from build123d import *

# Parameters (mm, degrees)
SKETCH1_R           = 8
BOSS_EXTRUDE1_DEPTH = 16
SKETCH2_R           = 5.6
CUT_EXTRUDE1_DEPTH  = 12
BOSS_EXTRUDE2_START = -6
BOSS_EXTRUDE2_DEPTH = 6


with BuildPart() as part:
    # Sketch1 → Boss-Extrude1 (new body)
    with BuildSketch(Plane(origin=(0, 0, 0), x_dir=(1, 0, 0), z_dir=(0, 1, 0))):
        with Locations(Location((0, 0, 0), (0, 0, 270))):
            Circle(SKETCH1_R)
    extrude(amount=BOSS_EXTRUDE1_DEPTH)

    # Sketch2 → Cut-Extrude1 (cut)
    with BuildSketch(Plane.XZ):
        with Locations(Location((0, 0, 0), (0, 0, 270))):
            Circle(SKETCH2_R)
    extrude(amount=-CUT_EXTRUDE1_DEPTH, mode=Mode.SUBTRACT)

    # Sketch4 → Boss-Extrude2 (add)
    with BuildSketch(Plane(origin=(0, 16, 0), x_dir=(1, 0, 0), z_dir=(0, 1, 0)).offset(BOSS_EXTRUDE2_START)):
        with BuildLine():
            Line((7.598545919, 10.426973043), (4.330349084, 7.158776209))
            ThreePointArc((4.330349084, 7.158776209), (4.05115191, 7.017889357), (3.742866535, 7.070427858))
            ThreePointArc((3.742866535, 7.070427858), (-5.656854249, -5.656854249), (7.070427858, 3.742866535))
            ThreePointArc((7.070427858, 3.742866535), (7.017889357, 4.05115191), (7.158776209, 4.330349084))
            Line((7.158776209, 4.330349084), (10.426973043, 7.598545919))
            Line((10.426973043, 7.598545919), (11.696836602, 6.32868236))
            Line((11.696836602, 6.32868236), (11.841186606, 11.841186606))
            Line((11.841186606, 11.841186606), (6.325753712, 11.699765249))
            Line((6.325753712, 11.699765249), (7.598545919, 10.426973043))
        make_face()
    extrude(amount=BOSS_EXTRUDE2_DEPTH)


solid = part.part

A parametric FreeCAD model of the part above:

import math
import FreeCAD as App
import Part
import Sketcher
Q = App.Units.Quantity

doc = App.newDocument("Part")
params = doc.addObject("Spreadsheet::Sheet", "Params")
for row, (alias, value) in enumerate([
    ("sketch1_diameter", "16 mm"),
    ("pad1_length", "16 mm"),
    ("sketch2_diameter", "11.2 mm"),
    ("pocket1_length", "12 mm"),
    ("sketch3_radius", "8 mm"),
    ("sketch3_radius2", "0.5 mm"),
    ("sketch3_length", "1.8 mm"),
    ("pad2_length", "6 mm"),
], start=1):
    params.set(f"A{row}", alias)
    params.set(f"B{row}", "=" + value)
    params.setAlias(f"B{row}", alias)

body = doc.addObject("PartDesign::Body", "Body")

# Sketch on XZ plane
sketch1 = doc.addObject("Sketcher::SketchObject", "Sketch")
body.addObject(sketch1)
sketch1.AttachmentSupport = (doc.XZ_Plane, [""])
sketch1.MapMode = "FlatFace"
sketch1.addGeometry(Part.Circle(App.Vector(0, 0, 0), App.Vector(0, 0, 1), 8), False)
sketch1.addConstraint(Sketcher.Constraint("Coincident", 0, 3, -1, 1))
sketch1.addConstraint(Sketcher.Constraint("Diameter", 0, Q("16 mm")))
sketch1.setExpression("Constraints[1]", "Params.sketch1_diameter")
pad1 = doc.addObject("PartDesign::Pad", "Pad")
body.addObject(pad1)
pad1.Profile = sketch1
pad1.setExpression("Length", "Params.pad1_length")
pad1.Reversed = True

# Sketch on XZ plane
sketch2 = doc.addObject("Sketcher::SketchObject", "Sketch001")
body.addObject(sketch2)
sketch2.AttachmentSupport = (doc.XZ_Plane, [""])
sketch2.MapMode = "FlatFace"
sketch2.addGeometry(Part.Circle(App.Vector(0, 0, 0), App.Vector(0, 0, 1), 6), False)
sketch2.addConstraint(Sketcher.Constraint("Coincident", 0, 3, -1, 1))
sketch2.addConstraint(Sketcher.Constraint("Diameter", 0, Q("11.2 mm")))
sketch2.setExpression("Constraints[1]", "Params.sketch2_diameter")
pocket1 = doc.addObject("PartDesign::Pocket", "Pocket")
body.addObject(pocket1)
pocket1.Profile = sketch2
pocket1.setExpression("Length", "Params.pocket1_length")

# Sketch on XZ plane
sketch3 = doc.addObject("Sketcher::SketchObject", "Sketch002")
body.addObject(sketch3)
sketch3.AttachmentSupport = (doc.XZ_Plane, [""])
sketch3.MapMode = "FlatFace"
sketch3.AttachmentOffset = App.Placement(App.Vector(0, 0, -10), App.Rotation())
sketch3.addGeometry(Part.LineSegment(App.Vector(7.6, -10.43, 0), App.Vector(4.33, -7.16, 0)), False)
sketch3.addGeometry(Part.ArcOfCircle(Part.Circle(App.Vector(3.98, -7.51, 0), App.Vector(0, 0, 1), 0.5), math.radians(45), math.radians(118)), False)
sketch3.addGeometry(Part.ArcOfCircle(Part.Circle(App.Vector(0, 0, 0), App.Vector(0, 0, 1), 8), math.radians(-28), math.radians(298)), False)
sketch3.addGeometry(Part.ArcOfCircle(Part.Circle(App.Vector(7.51, -3.98, 0), App.Vector(0, 0, 1), 0.5), math.radians(152), math.radians(225)), False)
sketch3.addGeometry(Part.LineSegment(App.Vector(7.16, -4.33, 0), App.Vector(10.43, -7.6, 0)), False)
sketch3.addGeometry(Part.LineSegment(App.Vector(10.43, -7.6, 0), App.Vector(11.7, -6.33, 0)), False)
sketch3.addGeometry(Part.LineSegment(App.Vector(11.7, -6.33, 0), App.Vector(11.84, -11.84, 0)), False)
sketch3.addGeometry(Part.LineSegment(App.Vector(11.84, -11.84, 0), App.Vector(6.33, -11.7, 0)), False)
sketch3.addGeometry(Part.LineSegment(App.Vector(6.33, -11.7, 0), App.Vector(7.6, -10.43, 0)), False)
sketch3.addConstraint(Sketcher.Constraint("Tangent", 0, 2, 1, 1))
sketch3.addConstraint(Sketcher.Constraint("Tangent", 1, 2, 2, 2))
sketch3.addConstraint(Sketcher.Constraint("Tangent", 2, 1, 3, 1))
sketch3.addConstraint(Sketcher.Constraint("Tangent", 3, 2, 4, 1))
sketch3.addConstraint(Sketcher.Constraint("Coincident", 4, 2, 5, 1))
sketch3.addConstraint(Sketcher.Constraint("Coincident", 5, 2, 6, 1))
sketch3.addConstraint(Sketcher.Constraint("Coincident", 6, 2, 7, 1))
sketch3.addConstraint(Sketcher.Constraint("Coincident", 7, 2, 8, 1))
sketch3.addConstraint(Sketcher.Constraint("Coincident", 8, 2, 0, 1))
sketch3.addConstraint(Sketcher.Constraint("Coincident", 2, 3, -1, 1))
sketch3.addConstraint(Sketcher.Constraint("Equal", 1, 3))
sketch3.addConstraint(Sketcher.Constraint("Parallel", 0, 4))
sketch3.addConstraint(Sketcher.Constraint("Perpendicular", 4, 5))
sketch3.addConstraint(Sketcher.Constraint("Parallel", 5, 8))
sketch3.addConstraint(Sketcher.Constraint("Equal", 0, 4))
sketch3.addConstraint(Sketcher.Constraint("Radius", 2, Q("8 mm")))
sketch3.addConstraint(Sketcher.Constraint("Radius", 1, Q("0.5 mm")))
sketch3.addConstraint(Sketcher.Constraint("Angle", 0, Q("135 deg")))
sketch3.addConstraint(Sketcher.Constraint("Angle", 6, Q("-88.5 deg")))
sketch3.addConstraint(Sketcher.Constraint("Distance", 8, Q("1.8 mm")))
sketch3.addConstraint(Sketcher.Constraint("DistanceY", 1, 3, 1, 2, Q("0.441902 mm")))
sketch3.addConstraint(Sketcher.Constraint("DistanceX", 2, 1, 3, 3, Q("0.441902 mm")))
sketch3.addConstraint(Sketcher.Constraint("Distance", 0, Q("4.621928 mm")))
sketch3.addConstraint(Sketcher.Constraint("Distance", 5, Q("1.795858 mm")))
sketch3.addConstraint(Sketcher.Constraint("DistanceY", 6, 2, 4, 2, Q("4.242641 mm")))
sketch3.setExpression("Constraints[15]", "Params.sketch3_radius")
sketch3.setExpression("Constraints[16]", "Params.sketch3_radius2")
sketch3.setExpression("Constraints[19]", "Params.sketch3_length")
pad2 = doc.addObject("PartDesign::Pad", "Pad001")
body.addObject(pad2)
pad2.Profile = sketch3
pad2.setExpression("Length", "Params.pad2_length")
pad2.Reversed = True

doc.recompute()
